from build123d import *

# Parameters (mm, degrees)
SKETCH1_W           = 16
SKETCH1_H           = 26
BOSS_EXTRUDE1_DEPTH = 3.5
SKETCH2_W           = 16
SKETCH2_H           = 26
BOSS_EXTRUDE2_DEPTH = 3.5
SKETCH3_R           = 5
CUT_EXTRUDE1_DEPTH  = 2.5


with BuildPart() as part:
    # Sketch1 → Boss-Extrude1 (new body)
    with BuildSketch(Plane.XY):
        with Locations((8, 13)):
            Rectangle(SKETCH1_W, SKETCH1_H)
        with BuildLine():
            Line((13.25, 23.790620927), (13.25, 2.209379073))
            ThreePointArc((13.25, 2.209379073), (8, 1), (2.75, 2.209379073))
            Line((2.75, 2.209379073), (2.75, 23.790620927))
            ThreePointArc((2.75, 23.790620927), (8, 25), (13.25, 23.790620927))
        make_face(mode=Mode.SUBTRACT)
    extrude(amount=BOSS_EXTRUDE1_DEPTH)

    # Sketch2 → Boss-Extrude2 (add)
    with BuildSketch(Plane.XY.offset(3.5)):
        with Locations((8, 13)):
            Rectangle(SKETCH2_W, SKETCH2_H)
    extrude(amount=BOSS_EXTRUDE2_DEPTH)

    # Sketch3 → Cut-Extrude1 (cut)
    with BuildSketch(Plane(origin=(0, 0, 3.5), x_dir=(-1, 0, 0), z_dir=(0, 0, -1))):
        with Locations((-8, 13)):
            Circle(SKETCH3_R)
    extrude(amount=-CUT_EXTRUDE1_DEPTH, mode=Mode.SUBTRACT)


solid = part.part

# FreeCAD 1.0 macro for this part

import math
import FreeCAD as App
import Part
import Sketcher

doc = App.newDocument("Part")
body = doc.addObject("PartDesign::Body", "Body")

sketch1 = body.newObject("Sketcher::SketchObject", "Sketch")
sketch1.AttachmentSupport = (doc.getObject("XY_Plane"), [""])
sketch1.MapMode = "FlatFace"
sketch1.addGeometry(Part.LineSegment(App.Vector(0, 26, 0), App.Vector(0, 0, 0)), False)
sketch1.addGeometry(Part.LineSegment(App.Vector(0, 0, 0), App.Vector(16, 0, 0)), False)
sketch1.addGeometry(Part.LineSegment(App.Vector(16, 0, 0), App.Vector(16, 26, 0)), False)
sketch1.addGeometry(Part.LineSegment(App.Vector(16, 26, 0), App.Vector(0, 26, 0)), False)
sketch1.addGeometry(Part.ArcOfCircle(Part.Circle(App.Vector(8, 13, 0), App.Vector(0, 0, 1), 12), math.radians(64), math.radians(116)), False)
sketch1.addGeometry(Part.LineSegment(App.Vector(13, 24, 0), App.Vector(13, 2, 0)), False)
sketch1.addGeometry(Part.ArcOfCircle(Part.Circle(App.Vector(8, 13, 0), App.Vector(0, 0, 1), 12), math.radians(-116), math.radians(-64)), False)
sketch1.addGeometry(Part.LineSegment(App.Vector(3, 2, 0), App.Vector(3, 24, 0)), False)
sketch1.addConstraint(Sketcher.Constraint("Coincident", 0, 2, 1, 1))
sketch1.addConstraint(Sketcher.Constraint("Coincident", 1, 2, 2, 1))
sketch1.addConstraint(Sketcher.Constraint("Coincident", 2, 2, 3, 1))
sketch1.addConstraint(Sketcher.Constraint("Coincident", 3, 2, 0, 1))
sketch1.addConstraint(Sketcher.Constraint("Coincident", 4, 1, 5, 1))
sketch1.addConstraint(Sketcher.Constraint("Coincident", 5, 2, 6, 2))
sketch1.addConstraint(Sketcher.Constraint("Coincident", 6, 1, 7, 1))
sketch1.addConstraint(Sketcher.Constraint("Coincident", 7, 2, 4, 2))
sketch1.addConstraint(Sketcher.Constraint("Vertical", 0))
sketch1.addConstraint(Sketcher.Constraint("Horizontal", 1))
sketch1.addConstraint(Sketcher.Constraint("Vertical", 2))
sketch1.addConstraint(Sketcher.Constraint("Horizontal", 3))
sketch1.addConstraint(Sketcher.Constraint("Vertical", 5))
sketch1.addConstraint(Sketcher.Constraint("Vertical", 7))
sketch1.addConstraint(Sketcher.Constraint("Coincident", 0, 2, -1, 1))
sketch1.addConstraint(Sketcher.Constraint("Coincident", 6, 3, 4, 3))
sketch1.addConstraint(Sketcher.Constraint("Equal", 4, 6))
sketch1.addConstraint(Sketcher.Constraint("Horizontal", 5, 2, 6, 1))
sketch1.addConstraint(Sketcher.Constraint("Radius", 4, 12.0))
sketch1.addConstraint(Sketcher.Constraint("DistanceX", 1, 1, 1, 2, 16.0))
sketch1.addConstraint(Sketcher.Constraint("DistanceY", 0, 2, 0, 1, 26.0))
sketch1.addConstraint(Sketcher.Constraint("DistanceX", -1, 1, 4, 3, 8.0))
sketch1.addConstraint(Sketcher.Constraint("DistanceY", -1, 1, 4, 3, 13.0))
sketch1.addConstraint(Sketcher.Constraint("DistanceX", 6, 1, 5, 2, 10.5))
pad1 = body.newObject("PartDesign::Pad", "Pad")
pad1.Profile = sketch1
pad1.Length = 3.5

sketch2 = body.newObject("Sketcher::SketchObject", "Sketch001")
sketch2.AttachmentSupport = (doc.getObject("XY_Plane"), [""])
sketch2.MapMode = "FlatFace"
sketch2.AttachmentOffset = App.Placement(App.Vector(0, 0, 3.5), App.Rotation())
sketch2.addGeometry(Part.LineSegment(App.Vector(0, 26, 0), App.Vector(0, 0, 0)), False)
sketch2.addGeometry(Part.LineSegment(App.Vector(0, 0, 0), App.Vector(16, 0, 0)), False)
sketch2.addGeometry(Part.LineSegment(App.Vector(16, 0, 0), App.Vector(16, 26, 0)), False)
sketch2.addGeometry(Part.LineSegment(App.Vector(16, 26, 0), App.Vector(0, 26, 0)), False)
sketch2.addConstraint(Sketcher.Constraint("Coincident", 0, 2, 1, 1))
sketch2.addConstraint(Sketcher.Constraint("Coincident", 1, 2, 2, 1))
sketch2.addConstraint(Sketcher.Constraint("Coincident", 2, 2, 3, 1))
sketch2.addConstraint(Sketcher.Constraint("Coincident", 3, 2, 0, 1))
sketch2.addConstraint(Sketcher.Constraint("Vertical", 0))
sketch2.addConstraint(Sketcher.Constraint("Horizontal", 1))
sketch2.addConstraint(Sketcher.Constraint("Vertical", 2))
sketch2.addConstraint(Sketcher.Constraint("Horizontal", 3))
sketch2.addConstraint(Sketcher.Constraint("Coincident", 0, 2, -1, 1))
sketch2.addConstraint(Sketcher.Constraint("DistanceX", 1, 1, 1, 2, 16.0))
sketch2.addConstraint(Sketcher.Constraint("DistanceY", 0, 2, 0, 1, 26.0))
pad2 = body.newObject("PartDesign::Pad", "Pad001")
pad2.Profile = sketch2
pad2.Length = 3.5

sketch3 = body.newObject("Sketcher::SketchObject", "Sketch002")
sketch3.AttachmentSupport = (doc.getObject("XY_Plane"), [""])
sketch3.MapMode = "FlatFace"
sketch3.AttachmentOffset = App.Placement(App.Vector(0, 0, 3.5), App.Rotation())
sketch3.addGeometry(Part.Circle(App.Vector(8, 13, 0), App.Vector(0, 0, 1), 5), False)
sketch3.addConstraint(Sketcher.Constraint("Diameter", 0, 10.0))
sketch3.addConstraint(Sketcher.Constraint("DistanceX", -1, 1, 0, 3, 8.0))
sketch3.addConstraint(Sketcher.Constraint("DistanceY", -1, 1, 0, 3, 13.0))
pocket1 = body.newObject("PartDesign::Pocket", "Pocket")
pocket1.Profile = sketch3
pocket1.Length = 2.5
pocket1.Reversed = True

doc.recompute()
